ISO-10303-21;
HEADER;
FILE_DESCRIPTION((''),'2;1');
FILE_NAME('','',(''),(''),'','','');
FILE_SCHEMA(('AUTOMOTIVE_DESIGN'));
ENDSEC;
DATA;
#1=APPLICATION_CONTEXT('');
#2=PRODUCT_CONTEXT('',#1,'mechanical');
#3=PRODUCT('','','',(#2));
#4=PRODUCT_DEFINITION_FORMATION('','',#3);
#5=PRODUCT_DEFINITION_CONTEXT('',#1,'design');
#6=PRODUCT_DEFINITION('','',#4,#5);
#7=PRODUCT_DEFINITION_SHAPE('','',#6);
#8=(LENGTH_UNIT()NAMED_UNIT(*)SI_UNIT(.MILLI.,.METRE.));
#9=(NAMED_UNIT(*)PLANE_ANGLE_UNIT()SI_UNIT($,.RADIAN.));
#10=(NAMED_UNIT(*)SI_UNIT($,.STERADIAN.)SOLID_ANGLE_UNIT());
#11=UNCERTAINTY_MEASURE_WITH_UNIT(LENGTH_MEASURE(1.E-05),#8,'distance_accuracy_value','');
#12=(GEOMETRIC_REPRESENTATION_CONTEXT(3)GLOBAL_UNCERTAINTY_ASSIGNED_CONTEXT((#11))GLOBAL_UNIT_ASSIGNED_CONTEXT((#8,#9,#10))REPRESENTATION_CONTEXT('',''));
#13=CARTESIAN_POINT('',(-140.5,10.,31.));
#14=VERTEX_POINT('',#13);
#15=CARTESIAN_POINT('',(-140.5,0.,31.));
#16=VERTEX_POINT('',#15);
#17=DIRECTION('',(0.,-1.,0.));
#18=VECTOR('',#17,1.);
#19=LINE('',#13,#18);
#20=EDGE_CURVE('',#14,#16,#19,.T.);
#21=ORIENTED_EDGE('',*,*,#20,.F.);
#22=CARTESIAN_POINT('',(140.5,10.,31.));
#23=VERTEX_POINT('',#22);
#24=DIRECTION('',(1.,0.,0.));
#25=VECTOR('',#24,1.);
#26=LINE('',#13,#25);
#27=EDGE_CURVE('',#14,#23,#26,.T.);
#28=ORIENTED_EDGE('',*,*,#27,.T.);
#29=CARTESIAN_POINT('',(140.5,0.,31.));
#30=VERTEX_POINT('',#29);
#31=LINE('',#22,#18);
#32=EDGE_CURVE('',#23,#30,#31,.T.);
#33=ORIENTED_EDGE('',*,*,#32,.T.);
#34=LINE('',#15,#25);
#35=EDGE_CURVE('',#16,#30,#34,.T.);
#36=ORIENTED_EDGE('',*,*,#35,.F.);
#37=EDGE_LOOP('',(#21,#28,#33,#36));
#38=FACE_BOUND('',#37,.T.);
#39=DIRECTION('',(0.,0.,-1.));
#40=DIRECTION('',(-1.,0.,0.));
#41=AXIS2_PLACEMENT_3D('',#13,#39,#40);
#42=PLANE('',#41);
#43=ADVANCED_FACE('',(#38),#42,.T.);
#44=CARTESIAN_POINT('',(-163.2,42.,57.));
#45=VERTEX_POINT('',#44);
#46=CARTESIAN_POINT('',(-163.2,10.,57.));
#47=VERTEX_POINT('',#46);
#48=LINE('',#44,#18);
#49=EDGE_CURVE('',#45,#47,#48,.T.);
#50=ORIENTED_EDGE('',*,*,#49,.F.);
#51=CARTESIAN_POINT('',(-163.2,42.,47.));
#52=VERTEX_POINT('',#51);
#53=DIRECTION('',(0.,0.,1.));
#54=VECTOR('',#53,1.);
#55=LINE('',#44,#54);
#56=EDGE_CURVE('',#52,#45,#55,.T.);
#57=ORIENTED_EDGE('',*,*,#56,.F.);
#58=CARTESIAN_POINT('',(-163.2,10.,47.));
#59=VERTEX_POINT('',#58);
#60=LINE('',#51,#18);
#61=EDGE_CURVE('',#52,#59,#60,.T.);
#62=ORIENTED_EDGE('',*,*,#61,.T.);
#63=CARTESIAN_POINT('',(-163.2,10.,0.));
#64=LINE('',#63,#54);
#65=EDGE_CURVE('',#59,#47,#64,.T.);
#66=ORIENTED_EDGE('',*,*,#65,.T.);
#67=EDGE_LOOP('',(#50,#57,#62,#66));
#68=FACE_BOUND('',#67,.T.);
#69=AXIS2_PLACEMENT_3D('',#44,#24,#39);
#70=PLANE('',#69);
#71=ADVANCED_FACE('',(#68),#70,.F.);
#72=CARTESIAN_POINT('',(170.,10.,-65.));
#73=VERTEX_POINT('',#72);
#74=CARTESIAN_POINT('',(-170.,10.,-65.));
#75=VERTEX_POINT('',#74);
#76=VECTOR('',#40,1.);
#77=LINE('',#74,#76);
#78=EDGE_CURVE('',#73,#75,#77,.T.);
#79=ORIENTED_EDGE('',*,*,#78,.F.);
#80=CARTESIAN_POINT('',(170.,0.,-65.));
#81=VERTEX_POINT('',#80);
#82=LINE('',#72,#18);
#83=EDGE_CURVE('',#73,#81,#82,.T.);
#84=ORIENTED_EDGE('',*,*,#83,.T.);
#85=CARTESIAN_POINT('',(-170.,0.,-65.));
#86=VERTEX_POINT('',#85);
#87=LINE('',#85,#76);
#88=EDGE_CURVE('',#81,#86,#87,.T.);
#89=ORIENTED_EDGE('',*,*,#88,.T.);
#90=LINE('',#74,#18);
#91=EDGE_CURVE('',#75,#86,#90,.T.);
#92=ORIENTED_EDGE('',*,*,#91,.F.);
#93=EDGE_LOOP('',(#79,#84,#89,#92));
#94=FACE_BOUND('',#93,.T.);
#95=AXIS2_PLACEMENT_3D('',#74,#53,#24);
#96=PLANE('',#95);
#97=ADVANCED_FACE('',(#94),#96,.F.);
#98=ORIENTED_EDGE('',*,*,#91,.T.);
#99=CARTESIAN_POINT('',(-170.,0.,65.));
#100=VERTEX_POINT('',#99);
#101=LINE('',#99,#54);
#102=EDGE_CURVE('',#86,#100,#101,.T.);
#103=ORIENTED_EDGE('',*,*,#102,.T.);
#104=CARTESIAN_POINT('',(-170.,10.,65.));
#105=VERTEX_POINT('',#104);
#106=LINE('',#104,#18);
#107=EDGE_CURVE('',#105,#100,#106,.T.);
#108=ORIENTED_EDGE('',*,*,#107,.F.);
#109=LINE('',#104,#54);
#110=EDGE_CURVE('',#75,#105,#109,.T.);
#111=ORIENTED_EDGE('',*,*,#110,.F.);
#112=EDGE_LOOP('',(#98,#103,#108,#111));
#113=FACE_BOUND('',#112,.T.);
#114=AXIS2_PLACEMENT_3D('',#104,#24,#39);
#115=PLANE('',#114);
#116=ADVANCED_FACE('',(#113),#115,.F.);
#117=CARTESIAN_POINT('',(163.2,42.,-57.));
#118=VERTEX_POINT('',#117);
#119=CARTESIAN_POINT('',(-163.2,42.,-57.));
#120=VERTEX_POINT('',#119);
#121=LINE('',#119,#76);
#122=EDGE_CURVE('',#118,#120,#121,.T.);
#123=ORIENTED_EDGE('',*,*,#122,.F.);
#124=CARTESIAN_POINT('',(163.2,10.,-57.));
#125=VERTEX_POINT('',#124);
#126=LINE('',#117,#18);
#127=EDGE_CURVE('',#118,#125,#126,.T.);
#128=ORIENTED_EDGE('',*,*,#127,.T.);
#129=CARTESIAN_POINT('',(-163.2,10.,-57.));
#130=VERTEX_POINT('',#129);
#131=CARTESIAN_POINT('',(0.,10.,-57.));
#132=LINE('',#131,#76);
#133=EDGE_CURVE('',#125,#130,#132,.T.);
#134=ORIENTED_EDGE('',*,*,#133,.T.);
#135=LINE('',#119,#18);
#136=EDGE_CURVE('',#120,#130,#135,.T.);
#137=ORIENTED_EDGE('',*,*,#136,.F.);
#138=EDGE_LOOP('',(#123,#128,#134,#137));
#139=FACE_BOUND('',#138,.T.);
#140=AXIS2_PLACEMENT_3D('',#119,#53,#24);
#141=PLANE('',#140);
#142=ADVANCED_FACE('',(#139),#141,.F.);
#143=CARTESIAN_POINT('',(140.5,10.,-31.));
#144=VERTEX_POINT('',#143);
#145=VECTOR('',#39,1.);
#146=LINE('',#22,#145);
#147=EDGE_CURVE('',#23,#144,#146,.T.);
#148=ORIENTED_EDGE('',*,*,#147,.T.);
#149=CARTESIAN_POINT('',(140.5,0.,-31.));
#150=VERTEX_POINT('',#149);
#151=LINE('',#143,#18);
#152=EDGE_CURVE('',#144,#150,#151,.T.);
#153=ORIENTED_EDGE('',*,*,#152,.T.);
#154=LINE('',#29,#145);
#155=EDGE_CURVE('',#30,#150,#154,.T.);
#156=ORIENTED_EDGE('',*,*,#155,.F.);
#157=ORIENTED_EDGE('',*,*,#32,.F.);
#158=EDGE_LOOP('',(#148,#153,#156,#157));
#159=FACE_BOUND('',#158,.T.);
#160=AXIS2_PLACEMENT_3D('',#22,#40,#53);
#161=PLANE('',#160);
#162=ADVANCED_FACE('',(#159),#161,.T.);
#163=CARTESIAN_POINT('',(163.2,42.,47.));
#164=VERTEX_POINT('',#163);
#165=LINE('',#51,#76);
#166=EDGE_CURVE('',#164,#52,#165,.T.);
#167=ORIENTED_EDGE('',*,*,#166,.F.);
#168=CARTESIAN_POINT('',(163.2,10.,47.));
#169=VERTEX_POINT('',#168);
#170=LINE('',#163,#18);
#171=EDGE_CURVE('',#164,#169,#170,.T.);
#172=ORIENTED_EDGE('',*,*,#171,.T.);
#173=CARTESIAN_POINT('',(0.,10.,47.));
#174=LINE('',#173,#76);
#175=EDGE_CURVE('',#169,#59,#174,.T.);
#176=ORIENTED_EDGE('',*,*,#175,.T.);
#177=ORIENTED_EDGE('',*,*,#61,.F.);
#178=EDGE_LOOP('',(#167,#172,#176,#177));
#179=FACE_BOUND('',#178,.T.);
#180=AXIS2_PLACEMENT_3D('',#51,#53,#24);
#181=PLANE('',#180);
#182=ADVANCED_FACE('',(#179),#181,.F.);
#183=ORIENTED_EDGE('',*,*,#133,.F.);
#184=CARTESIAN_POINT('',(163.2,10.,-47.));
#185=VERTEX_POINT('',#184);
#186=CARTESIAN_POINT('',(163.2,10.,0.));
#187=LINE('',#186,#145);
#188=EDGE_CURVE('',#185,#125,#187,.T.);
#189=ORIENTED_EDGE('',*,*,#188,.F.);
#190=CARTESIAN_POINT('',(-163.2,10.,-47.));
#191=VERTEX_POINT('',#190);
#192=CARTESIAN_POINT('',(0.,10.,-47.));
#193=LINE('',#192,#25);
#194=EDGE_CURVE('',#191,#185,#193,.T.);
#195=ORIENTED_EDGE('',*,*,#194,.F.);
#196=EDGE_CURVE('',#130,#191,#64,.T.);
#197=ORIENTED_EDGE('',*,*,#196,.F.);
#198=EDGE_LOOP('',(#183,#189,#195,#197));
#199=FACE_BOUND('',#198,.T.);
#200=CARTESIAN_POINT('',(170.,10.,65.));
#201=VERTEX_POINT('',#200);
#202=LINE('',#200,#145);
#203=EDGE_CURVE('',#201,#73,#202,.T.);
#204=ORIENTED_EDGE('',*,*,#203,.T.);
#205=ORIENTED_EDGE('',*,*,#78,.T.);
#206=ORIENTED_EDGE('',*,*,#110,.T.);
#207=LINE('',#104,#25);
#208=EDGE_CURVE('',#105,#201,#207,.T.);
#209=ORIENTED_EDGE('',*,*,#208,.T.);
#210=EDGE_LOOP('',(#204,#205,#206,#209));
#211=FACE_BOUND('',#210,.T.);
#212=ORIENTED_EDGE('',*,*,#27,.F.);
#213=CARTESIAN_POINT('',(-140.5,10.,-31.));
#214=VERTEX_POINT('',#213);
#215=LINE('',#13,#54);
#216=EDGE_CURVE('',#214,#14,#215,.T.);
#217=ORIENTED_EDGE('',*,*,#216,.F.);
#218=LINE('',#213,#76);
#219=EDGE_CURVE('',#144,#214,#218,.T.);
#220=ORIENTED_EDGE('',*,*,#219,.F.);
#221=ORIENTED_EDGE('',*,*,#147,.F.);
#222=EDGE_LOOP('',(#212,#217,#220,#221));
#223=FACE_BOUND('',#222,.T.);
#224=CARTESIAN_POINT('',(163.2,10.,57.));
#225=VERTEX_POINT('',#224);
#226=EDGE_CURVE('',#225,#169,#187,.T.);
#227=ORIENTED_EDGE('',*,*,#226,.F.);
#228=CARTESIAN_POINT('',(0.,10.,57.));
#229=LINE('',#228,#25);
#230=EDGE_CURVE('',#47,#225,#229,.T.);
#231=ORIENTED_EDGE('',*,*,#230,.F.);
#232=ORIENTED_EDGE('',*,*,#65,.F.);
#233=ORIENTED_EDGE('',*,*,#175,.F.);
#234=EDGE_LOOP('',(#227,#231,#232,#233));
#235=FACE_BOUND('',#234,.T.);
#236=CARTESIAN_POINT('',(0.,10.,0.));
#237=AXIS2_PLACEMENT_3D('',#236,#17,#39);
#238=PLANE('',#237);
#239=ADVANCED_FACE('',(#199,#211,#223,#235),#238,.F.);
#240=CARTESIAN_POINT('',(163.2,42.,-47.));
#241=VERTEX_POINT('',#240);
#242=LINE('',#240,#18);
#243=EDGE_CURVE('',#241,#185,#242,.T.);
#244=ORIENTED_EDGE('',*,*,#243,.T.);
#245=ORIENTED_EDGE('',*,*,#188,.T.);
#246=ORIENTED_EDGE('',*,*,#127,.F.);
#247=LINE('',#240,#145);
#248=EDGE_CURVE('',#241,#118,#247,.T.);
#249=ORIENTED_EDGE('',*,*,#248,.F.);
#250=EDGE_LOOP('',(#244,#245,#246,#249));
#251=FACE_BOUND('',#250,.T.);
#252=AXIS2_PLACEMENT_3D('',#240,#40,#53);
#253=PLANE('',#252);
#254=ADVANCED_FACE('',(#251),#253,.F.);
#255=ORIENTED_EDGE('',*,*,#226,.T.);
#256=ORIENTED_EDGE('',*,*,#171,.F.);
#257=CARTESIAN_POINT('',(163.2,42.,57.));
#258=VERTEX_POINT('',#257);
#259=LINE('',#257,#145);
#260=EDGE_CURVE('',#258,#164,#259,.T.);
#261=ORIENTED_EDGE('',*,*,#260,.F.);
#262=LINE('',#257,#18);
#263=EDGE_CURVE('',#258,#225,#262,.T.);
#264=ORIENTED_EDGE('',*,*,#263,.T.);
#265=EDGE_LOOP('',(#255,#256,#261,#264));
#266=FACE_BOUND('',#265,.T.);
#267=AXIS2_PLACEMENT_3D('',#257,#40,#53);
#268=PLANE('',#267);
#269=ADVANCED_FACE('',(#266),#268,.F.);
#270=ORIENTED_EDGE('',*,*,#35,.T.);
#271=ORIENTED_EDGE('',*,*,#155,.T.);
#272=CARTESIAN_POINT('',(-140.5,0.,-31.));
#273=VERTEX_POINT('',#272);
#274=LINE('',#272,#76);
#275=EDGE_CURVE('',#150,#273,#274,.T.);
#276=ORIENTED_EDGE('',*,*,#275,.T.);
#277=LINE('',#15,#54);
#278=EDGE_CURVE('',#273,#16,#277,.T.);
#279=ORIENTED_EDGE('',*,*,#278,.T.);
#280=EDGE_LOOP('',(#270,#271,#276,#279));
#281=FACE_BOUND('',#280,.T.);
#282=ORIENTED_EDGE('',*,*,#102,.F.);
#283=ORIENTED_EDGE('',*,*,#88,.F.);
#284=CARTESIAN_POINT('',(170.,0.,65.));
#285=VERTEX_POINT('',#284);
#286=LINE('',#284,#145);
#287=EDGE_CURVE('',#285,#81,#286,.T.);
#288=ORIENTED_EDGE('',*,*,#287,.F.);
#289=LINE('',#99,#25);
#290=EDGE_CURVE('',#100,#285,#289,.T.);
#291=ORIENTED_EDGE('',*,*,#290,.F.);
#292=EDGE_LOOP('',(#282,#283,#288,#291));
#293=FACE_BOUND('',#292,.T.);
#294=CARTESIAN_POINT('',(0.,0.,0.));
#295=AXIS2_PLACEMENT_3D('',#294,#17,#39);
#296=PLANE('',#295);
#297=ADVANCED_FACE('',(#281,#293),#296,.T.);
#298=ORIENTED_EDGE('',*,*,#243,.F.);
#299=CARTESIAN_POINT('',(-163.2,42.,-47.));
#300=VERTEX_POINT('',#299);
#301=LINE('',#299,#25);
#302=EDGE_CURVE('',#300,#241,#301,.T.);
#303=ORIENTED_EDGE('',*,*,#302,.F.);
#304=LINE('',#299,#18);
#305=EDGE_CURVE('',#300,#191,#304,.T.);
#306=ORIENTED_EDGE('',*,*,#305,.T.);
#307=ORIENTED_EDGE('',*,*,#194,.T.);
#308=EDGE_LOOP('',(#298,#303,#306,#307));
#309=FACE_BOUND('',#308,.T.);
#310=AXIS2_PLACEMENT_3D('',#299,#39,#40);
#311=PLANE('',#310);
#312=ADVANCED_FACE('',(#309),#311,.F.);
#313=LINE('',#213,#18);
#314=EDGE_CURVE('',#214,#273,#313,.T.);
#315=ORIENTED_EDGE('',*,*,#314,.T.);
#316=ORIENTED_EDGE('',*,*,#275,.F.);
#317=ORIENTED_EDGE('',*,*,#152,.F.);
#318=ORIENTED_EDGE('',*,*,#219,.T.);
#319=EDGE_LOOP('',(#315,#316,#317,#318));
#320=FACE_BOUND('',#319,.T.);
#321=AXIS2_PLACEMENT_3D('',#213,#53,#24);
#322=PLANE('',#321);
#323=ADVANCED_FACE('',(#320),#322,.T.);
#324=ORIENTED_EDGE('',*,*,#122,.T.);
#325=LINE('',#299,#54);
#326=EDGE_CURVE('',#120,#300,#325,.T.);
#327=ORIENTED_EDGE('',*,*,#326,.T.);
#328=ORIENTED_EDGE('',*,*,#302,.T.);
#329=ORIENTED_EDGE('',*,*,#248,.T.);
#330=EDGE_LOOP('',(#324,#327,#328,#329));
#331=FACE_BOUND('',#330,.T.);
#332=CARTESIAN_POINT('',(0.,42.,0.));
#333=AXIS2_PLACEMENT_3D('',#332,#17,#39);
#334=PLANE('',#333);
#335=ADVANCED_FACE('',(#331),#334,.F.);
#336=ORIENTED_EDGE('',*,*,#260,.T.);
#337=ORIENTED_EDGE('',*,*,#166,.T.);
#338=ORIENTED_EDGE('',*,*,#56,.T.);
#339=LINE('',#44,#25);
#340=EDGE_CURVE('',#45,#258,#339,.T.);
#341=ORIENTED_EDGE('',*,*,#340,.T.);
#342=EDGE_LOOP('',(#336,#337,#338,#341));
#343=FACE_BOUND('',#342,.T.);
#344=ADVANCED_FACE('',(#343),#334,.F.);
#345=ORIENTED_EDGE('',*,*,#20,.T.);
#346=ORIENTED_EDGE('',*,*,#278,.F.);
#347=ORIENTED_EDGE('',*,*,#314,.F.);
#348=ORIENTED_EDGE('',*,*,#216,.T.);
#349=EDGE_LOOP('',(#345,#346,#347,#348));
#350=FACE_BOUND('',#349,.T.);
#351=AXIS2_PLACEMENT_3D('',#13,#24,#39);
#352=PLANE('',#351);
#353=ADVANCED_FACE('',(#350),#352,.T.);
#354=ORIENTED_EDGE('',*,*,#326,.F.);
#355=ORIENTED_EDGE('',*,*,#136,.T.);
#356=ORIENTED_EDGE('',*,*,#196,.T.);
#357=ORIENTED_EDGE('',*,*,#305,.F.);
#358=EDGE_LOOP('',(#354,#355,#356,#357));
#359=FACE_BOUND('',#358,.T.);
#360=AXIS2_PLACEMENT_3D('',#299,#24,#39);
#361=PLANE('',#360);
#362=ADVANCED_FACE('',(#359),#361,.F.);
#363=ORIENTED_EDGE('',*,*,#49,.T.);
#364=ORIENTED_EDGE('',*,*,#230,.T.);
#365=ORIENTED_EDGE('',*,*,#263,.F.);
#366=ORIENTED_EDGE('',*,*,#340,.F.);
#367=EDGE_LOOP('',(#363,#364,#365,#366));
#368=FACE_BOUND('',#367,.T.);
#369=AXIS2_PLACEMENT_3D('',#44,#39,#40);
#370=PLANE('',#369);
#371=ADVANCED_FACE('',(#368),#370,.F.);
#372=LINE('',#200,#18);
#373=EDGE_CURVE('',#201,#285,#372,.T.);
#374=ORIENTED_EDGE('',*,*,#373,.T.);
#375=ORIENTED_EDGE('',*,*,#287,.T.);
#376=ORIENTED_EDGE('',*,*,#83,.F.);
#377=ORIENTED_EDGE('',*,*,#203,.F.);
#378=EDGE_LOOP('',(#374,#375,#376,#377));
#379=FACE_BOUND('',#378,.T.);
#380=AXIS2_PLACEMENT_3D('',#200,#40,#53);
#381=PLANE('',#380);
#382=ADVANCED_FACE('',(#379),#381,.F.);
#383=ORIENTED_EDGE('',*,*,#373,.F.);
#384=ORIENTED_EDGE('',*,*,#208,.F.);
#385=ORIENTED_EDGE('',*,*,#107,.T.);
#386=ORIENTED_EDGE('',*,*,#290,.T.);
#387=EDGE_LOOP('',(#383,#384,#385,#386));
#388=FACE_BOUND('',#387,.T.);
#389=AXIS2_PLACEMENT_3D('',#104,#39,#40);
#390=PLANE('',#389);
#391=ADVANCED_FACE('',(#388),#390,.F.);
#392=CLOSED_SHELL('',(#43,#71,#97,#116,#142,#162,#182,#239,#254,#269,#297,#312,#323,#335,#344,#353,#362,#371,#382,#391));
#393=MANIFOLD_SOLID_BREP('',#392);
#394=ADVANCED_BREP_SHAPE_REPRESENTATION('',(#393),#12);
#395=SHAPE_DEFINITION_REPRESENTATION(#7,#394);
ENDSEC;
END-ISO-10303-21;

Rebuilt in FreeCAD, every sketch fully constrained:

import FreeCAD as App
import Part
import Sketcher
from FreeCAD import Vector
Q = App.Units.Quantity


def add_polygon(sketch, points):
    """Adds a closed chain of lines whose ends are joined by coincident constraints."""
    first, n = sketch.GeometryCount, len(points)
    for a, b in zip(points, points[1:] + points[:1]):
        sketch.addGeometry(Part.LineSegment(App.Vector(*a, 0), App.Vector(*b, 0)), False)
    for i in range(n):
        sketch.addConstraint(Sketcher.Constraint("Coincident", first + i, 2, first + (i + 1) % n, 1))

doc = App.newDocument("Part")
body = doc.addObject("PartDesign::Body", "Body")

sketch1 = body.newObject("Sketcher::SketchObject", "Sketch")
sketch1.AttachmentSupport = (doc.getObject("XZ_Plane"), [""])
sketch1.MapMode = "FlatFace"
add_polygon(sketch1, [(-170, -65), (-170, 65), (170, 65), (170, -65)])
sketch1.addGeometry(Part.Circle(Vector(-145, 52, 0), Vector(0, 0, 1), 4.5), False)
sketch1.addGeometry(Part.Circle(Vector(145, 52, 0), Vector(0, 0, 1), 4.5), False)
sketch1.addGeometry(Part.Circle(Vector(-145, -52, 0), Vector(0, 0, 1), 4.5), False)
add_polygon(sketch1, [(140.5, 31), (-140.5, 31), (-140.5, -31), (140.5, -31)])
sketch1.addGeometry(Part.Circle(Vector(145, -52, 0), Vector(0, 0, 1), 4.5), False)
sketch1.addConstraint(Sketcher.Constraint("Vertical", 0))
sketch1.addConstraint(Sketcher.Constraint("Horizontal", 1))
sketch1.addConstraint(Sketcher.Constraint("Vertical", 2))
sketch1.addConstraint(Sketcher.Constraint("Horizontal", 3))
sketch1.addConstraint(Sketcher.Constraint("Horizontal", 7))
sketch1.addConstraint(Sketcher.Constraint("Vertical", 8))
sketch1.addConstraint(Sketcher.Constraint("Horizontal", 9))
sketch1.addConstraint(Sketcher.Constraint("Vertical", 10))
sketch1.addConstraint(Sketcher.Constraint("Equal", 4, 5))
sketch1.addConstraint(Sketcher.Constraint("Equal", 5, 6))
sketch1.addConstraint(Sketcher.Constraint("Equal", 6, 11))
sketch1.addConstraint(Sketcher.Constraint("Symmetric", 5, 3, 6, 3, -1, 1))
sketch1.addConstraint(Sketcher.Constraint("Symmetric", 4, 3, 11, 3, -1, 1))
sketch1.addConstraint(Sketcher.Constraint("Symmetric", 0, 2, 2, 2, -1, 1))
sketch1.addConstraint(Sketcher.Constraint("Symmetric", 7, 2, 9, 2, -1, 1))
sketch1.addConstraint(Sketcher.Constraint("Symmetric", 4, 3, 5, 3, -2))
sketch1.addConstraint(Sketcher.Constraint("Diameter", 4, Q("9 mm")))
sketch1.addConstraint(Sketcher.Constraint("DistanceX", 1, 1, 1, 2, Q("340 mm")))
sketch1.addConstraint(Sketcher.Constraint("DistanceX", 7, 2, 7, 1, Q("281 mm")))
sketch1.addConstraint(Sketcher.Constraint("DistanceY", 0, 1, 0, 2, Q("130 mm")))
sketch1.addConstraint(Sketcher.Constraint("DistanceY", 8, 2, 8, 1, Q("62 mm")))
sketch1.addConstraint(Sketcher.Constraint("DistanceX", 4, 3, -1, 1, Q("145 mm")))
sketch1.addConstraint(Sketcher.Constraint("DistanceY", -1, 1, 4, 3, Q("52 mm")))
pad1 = body.newObject("PartDesign::Pad", "Pad")
pad1.Profile = sketch1
pad1.Length = 10
pad1.Reversed = True

sketch2 = body.newObject("Sketcher::SketchObject", "Sketch001")
sketch2.AttachmentSupport = (doc.getObject("XZ_Plane"), [""])
sketch2.MapMode = "FlatFace"
add_polygon(sketch2, [(-163.2, -57), (-163.2, -47), (163.2, -47), (163.2, -57)])
add_polygon(sketch2, [(-163.2, 47), (-163.2, 57), (163.2, 57), (163.2, 47)])
sketch2.addConstraint(Sketcher.Constraint("Vertical", 0))
sketch2.addConstraint(Sketcher.Constraint("Horizontal", 1))
sketch2.addConstraint(Sketcher.Constraint("Vertical", 2))
sketch2.addConstraint(Sketcher.Constraint("Horizontal", 3))
sketch2.addConstraint(Sketcher.Constraint("Vertical", 4))
sketch2.addConstraint(Sketcher.Constraint("Horizontal", 5))
sketch2.addConstraint(Sketcher.Constraint("Vertical", 6))
sketch2.addConstraint(Sketcher.Constraint("Horizontal", 7))
sketch2.addConstraint(Sketcher.Constraint("Symmetric", 2, 2, 4, 2, -1, 1))
sketch2.addConstraint(Sketcher.Constraint("Symmetric", 0, 2, 6, 2, -1, 1))
sketch2.addConstraint(Sketcher.Constraint("Vertical", 3, 2, 4, 2))
sketch2.addConstraint(Sketcher.Constraint("DistanceY", 0, 1, 0, 2, Q("10 mm")))
sketch2.addConstraint(Sketcher.Constraint("DistanceX", 1, 1, 1, 2, Q("326.4 mm")))
sketch2.addConstraint(Sketcher.Constraint("DistanceY", 0, 2, -1, 1, Q("47 mm")))
pad2 = body.newObject("PartDesign::Pad", "Pad001")
pad2.Profile = sketch2
pad2.Length = 42
pad2.Reversed = True

doc.recompute()
